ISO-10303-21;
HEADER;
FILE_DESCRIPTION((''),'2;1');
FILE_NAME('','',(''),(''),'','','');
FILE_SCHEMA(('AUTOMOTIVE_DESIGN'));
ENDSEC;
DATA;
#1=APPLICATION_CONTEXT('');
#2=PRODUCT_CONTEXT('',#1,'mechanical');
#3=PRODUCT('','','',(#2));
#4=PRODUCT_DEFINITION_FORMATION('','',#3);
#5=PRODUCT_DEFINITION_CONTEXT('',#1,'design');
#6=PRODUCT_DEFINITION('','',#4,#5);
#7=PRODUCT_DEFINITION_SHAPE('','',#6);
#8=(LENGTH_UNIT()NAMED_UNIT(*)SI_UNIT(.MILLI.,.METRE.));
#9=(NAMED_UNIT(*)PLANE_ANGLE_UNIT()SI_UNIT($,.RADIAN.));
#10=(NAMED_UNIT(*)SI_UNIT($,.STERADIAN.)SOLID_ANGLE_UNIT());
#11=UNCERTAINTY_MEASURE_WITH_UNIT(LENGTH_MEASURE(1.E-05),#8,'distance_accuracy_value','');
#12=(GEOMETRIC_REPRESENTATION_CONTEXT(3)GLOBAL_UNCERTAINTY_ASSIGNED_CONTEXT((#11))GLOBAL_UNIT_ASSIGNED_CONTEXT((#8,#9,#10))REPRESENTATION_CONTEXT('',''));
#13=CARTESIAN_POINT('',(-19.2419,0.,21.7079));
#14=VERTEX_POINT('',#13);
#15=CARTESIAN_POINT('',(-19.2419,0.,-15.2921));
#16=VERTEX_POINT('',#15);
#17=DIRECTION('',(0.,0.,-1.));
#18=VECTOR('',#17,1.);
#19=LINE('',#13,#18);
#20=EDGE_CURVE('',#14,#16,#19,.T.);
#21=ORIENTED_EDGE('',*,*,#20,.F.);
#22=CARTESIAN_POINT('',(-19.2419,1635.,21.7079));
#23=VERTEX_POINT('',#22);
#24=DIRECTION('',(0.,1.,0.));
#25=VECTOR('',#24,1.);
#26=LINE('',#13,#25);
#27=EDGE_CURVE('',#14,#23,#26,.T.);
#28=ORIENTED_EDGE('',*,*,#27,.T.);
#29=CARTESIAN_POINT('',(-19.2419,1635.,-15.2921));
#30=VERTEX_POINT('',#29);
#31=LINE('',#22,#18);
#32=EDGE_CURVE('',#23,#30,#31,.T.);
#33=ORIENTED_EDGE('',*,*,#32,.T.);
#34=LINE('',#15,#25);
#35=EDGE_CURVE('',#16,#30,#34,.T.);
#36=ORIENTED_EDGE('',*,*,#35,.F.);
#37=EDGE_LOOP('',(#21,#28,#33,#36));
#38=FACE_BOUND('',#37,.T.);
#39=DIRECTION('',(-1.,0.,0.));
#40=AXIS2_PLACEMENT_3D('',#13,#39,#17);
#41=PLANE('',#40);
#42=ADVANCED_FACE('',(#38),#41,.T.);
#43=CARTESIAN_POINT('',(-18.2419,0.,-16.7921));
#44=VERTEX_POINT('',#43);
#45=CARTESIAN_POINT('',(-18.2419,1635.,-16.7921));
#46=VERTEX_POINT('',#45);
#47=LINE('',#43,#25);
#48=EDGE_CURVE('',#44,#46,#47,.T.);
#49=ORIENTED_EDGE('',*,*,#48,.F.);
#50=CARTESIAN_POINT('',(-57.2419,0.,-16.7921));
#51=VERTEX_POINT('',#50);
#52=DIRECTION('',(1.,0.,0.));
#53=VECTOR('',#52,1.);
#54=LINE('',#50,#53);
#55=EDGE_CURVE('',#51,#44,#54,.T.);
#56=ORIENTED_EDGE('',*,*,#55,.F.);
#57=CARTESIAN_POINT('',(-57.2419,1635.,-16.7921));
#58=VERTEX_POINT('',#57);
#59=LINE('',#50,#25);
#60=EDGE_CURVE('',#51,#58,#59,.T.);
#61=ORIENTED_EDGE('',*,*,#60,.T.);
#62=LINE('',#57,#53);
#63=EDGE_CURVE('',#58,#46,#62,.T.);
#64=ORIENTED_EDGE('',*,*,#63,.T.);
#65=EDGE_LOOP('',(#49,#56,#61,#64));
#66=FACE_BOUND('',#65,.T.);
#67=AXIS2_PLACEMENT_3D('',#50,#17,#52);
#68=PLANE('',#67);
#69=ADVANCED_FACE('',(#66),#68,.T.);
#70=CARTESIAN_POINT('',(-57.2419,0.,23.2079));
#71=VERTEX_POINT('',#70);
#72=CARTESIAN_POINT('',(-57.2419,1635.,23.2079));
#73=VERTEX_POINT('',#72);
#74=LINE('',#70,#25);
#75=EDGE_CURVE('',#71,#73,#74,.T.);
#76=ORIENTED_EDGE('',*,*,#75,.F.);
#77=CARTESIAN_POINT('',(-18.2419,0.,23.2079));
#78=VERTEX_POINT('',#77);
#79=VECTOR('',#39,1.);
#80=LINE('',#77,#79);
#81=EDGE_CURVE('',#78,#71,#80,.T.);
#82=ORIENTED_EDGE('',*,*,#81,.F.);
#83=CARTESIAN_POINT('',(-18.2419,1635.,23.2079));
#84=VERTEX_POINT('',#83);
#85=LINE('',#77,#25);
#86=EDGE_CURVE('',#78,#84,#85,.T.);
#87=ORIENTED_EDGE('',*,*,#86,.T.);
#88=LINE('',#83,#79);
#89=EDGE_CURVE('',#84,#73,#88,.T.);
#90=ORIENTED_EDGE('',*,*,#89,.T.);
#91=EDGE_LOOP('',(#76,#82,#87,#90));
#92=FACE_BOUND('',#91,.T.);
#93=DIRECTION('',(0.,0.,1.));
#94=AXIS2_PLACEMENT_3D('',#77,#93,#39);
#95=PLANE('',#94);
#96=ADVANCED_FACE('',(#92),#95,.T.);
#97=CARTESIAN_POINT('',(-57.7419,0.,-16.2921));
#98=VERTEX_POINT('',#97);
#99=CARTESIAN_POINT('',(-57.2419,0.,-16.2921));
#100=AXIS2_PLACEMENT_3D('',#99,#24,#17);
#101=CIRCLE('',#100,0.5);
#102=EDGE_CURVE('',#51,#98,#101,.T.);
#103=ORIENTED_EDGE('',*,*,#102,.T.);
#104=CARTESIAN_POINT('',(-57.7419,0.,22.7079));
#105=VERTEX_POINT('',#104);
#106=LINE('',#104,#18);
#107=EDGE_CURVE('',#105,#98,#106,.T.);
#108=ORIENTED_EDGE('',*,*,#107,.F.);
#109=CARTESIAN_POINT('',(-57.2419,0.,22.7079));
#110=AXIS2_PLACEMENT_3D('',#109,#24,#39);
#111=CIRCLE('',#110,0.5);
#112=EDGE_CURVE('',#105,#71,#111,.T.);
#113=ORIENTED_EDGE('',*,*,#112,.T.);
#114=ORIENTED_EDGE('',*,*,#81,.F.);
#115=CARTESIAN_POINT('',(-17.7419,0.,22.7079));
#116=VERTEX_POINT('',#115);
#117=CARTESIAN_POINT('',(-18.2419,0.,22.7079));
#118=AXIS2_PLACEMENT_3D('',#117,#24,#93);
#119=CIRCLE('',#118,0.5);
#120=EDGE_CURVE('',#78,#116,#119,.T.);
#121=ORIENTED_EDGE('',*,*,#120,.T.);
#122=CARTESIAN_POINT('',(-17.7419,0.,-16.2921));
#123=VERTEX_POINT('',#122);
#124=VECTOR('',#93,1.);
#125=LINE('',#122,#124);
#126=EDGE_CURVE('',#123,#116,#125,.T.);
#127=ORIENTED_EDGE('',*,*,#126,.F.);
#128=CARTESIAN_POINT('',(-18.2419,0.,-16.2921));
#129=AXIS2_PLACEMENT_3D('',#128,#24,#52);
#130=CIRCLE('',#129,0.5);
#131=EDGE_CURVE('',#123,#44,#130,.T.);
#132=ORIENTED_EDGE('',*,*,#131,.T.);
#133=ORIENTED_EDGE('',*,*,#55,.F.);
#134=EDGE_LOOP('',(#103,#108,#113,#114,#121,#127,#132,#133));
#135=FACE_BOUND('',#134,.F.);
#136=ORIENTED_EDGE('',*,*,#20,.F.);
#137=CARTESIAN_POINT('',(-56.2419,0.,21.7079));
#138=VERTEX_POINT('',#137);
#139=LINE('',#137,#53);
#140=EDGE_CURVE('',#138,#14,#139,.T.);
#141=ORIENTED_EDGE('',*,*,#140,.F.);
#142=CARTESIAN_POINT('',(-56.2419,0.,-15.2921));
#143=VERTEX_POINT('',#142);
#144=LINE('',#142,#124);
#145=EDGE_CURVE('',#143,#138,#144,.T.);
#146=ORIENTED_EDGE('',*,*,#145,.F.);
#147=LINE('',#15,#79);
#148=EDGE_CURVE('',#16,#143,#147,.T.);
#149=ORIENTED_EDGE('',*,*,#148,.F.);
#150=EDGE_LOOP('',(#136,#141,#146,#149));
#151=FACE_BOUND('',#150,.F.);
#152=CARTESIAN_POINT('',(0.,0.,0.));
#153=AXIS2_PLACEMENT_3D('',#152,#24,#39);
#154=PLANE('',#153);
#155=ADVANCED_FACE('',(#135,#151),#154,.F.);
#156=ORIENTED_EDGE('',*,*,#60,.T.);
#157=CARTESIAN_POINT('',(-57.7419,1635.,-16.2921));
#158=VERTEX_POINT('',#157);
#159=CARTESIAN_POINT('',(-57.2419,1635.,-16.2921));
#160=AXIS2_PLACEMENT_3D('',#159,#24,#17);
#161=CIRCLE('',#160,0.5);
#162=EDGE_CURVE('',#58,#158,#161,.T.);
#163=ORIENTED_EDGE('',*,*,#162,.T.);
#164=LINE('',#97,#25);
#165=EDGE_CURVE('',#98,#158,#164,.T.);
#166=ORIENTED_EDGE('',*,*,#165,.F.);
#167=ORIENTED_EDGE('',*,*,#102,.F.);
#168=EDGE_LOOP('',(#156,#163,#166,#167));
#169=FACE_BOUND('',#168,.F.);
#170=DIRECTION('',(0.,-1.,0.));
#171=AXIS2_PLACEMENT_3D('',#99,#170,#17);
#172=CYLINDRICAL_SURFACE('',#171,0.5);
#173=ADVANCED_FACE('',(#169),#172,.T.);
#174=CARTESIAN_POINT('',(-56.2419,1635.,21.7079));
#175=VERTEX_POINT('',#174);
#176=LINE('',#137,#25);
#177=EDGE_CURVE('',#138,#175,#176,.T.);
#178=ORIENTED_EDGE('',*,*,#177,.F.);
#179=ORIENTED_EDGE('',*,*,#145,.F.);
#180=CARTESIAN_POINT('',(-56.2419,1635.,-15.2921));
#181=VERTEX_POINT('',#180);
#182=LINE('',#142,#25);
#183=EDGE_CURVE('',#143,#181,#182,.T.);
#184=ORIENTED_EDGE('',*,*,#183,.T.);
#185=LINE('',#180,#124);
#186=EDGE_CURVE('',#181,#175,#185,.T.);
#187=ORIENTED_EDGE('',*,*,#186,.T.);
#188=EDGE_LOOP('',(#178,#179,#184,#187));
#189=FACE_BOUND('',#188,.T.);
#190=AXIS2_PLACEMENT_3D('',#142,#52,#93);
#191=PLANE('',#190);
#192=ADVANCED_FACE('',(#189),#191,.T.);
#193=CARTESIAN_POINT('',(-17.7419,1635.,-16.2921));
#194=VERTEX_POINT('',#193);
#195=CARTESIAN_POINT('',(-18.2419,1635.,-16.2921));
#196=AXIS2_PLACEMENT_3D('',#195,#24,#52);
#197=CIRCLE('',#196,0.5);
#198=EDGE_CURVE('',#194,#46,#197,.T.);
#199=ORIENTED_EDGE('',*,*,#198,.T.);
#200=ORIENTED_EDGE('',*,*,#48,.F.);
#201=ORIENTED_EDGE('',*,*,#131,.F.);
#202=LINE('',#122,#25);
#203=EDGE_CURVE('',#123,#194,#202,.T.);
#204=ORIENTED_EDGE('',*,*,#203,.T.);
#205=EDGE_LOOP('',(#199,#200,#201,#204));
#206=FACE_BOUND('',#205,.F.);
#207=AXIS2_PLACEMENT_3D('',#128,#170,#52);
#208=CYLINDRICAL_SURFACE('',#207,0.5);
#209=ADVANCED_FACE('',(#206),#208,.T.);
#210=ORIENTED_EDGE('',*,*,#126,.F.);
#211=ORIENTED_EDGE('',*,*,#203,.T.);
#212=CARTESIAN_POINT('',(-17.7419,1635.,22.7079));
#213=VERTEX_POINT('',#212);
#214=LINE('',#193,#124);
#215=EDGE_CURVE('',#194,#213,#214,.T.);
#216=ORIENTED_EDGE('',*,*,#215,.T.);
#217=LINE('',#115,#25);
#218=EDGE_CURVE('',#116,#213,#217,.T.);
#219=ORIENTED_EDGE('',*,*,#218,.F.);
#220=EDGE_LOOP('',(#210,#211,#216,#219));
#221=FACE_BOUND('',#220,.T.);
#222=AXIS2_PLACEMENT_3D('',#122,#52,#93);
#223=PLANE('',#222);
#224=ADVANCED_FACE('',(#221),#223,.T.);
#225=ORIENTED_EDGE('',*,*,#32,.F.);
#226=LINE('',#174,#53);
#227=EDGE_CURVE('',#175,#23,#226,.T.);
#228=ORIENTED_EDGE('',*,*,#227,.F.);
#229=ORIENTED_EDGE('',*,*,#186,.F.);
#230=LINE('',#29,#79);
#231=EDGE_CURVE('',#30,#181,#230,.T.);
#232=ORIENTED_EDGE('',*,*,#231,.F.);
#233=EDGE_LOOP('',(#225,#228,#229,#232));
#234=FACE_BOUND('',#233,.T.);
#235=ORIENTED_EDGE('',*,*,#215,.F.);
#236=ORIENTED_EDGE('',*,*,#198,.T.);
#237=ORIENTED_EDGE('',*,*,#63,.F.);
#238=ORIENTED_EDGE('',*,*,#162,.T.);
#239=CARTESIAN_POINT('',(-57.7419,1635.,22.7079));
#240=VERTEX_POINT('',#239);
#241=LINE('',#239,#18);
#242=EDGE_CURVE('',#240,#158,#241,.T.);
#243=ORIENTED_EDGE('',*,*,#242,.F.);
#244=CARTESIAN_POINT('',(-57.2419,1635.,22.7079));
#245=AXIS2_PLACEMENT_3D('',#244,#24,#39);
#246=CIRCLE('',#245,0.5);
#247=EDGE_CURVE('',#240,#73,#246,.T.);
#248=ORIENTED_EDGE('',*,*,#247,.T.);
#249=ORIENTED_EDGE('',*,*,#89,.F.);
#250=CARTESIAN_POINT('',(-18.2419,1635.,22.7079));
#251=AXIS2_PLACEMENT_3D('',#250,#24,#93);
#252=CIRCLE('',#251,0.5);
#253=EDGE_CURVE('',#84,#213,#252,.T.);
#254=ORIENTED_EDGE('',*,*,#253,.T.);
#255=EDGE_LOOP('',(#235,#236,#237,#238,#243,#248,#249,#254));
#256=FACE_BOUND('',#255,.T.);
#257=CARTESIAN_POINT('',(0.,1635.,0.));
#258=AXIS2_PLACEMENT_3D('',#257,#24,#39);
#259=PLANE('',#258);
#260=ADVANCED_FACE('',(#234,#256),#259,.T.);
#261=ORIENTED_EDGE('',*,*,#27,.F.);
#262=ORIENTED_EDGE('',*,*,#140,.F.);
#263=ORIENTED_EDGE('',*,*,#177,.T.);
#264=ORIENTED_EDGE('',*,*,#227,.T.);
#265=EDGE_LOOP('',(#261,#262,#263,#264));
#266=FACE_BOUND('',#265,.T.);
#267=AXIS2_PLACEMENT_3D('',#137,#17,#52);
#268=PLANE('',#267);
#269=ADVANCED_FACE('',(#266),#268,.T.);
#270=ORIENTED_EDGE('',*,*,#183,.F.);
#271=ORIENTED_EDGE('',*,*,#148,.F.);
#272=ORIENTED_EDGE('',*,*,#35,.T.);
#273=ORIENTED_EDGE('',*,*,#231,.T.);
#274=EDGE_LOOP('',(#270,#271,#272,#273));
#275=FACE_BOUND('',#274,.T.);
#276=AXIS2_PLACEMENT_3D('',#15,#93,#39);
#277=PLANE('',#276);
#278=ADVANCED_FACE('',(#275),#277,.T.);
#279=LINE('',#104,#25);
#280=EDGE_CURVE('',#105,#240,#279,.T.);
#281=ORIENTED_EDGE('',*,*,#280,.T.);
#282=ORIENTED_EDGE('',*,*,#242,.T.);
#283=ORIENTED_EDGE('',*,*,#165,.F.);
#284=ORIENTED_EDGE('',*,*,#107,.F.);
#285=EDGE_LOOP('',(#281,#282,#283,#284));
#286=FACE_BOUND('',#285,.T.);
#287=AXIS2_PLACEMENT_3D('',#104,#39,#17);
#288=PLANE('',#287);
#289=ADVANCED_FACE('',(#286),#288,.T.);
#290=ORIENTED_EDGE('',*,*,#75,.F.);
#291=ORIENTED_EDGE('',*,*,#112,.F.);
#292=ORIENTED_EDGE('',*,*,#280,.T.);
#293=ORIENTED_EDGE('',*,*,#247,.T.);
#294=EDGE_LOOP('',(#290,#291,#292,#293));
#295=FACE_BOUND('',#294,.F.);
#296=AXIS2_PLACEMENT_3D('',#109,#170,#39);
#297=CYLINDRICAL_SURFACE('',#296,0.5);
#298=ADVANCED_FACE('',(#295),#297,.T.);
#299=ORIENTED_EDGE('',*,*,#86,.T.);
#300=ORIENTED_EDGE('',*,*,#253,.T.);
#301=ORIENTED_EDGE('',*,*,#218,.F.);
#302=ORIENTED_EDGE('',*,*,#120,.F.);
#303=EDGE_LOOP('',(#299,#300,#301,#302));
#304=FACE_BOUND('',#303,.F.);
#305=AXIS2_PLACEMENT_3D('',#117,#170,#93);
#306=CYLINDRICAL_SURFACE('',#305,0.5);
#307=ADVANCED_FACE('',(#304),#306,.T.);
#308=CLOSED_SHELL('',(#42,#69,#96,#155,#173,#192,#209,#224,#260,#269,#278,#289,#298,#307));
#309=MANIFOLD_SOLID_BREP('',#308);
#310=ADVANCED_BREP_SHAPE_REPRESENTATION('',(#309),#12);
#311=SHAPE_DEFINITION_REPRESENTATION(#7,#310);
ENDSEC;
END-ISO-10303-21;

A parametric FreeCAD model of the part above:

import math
import FreeCAD as App
import Part
import Sketcher
from FreeCAD import Vector

doc = App.newDocument("Part")
params = doc.addObject("Spreadsheet::Sheet", "Params")
for row, (alias, value) in enumerate([
    ("sketch1_radius", "0.5 mm"),
    ("sketch1_width", "39 mm"),
    ("pad1_length", "1635 mm"),
], start=1):
    params.set(f"A{row}", alias)
    params.set(f"B{row}", "=" + value)
    params.setAlias(f"B{row}", alias)

body = doc.addObject("PartDesign::Body", "Body")

# Sketch on XZ plane
sketch1 = doc.addObject("Sketcher::SketchObject", "Sketch")
body.addObject(sketch1)
sketch1.AttachmentSupport = (doc.XZ_Plane, [""])
sketch1.MapMode = "FlatFace"
sketch1.addGeometry([
    Part.LineSegment(Vector(-57.2, 23.2, 0), Vector(-18.2, 23.2, 0)),  # 0
    Part.ArcOfCircle(Part.Circle(Vector(-18.2, 22.7, 0), Vector(0, 0, 1), 0.5), math.radians(0), math.radians(90)),  # 1
    Part.LineSegment(Vector(-17.7, 22.7, 0), Vector(-17.7, -16.3, 0)),  # 2
    Part.ArcOfCircle(Part.Circle(Vector(-18.2, -16.3, 0), Vector(0, 0, 1), 0.5), math.radians(-90), math.radians(0)),  # 3
    Part.LineSegment(Vector(-18.2, -16.8, 0), Vector(-57.2, -16.8, 0)),  # 4
    Part.ArcOfCircle(Part.Circle(Vector(-57.2, -16.3, 0), Vector(0, 0, 1), 0.5), math.radians(180), math.radians(270)),  # 5
    Part.LineSegment(Vector(-57.7, -16.3, 0), Vector(-57.7, 22.7, 0)),  # 6
    Part.ArcOfCircle(Part.Circle(Vector(-57.2, 22.7, 0), Vector(0, 0, 1), 0.5), math.radians(90), math.radians(180)),  # 7
    Part.LineSegment(Vector(-19.2, 21.7, 0), Vector(-56.2, 21.7, 0)),  # 8
    Part.LineSegment(Vector(-56.2, 21.7, 0), Vector(-56.2, -15.3, 0)),  # 9
    Part.LineSegment(Vector(-56.2, -15.3, 0), Vector(-19.2, -15.3, 0)),  # 10
    Part.LineSegment(Vector(-19.2, -15.3, 0), Vector(-19.2, 21.7, 0)),  # 11
], False)
sketch1.addConstraint([
    Sketcher.Constraint("Tangent", 0, 2, 1, 2),
    Sketcher.Constraint("Tangent", 1, 1, 2, 1),
    Sketcher.Constraint("Tangent", 2, 2, 3, 2),
    Sketcher.Constraint("Tangent", 3, 1, 4, 1),
    Sketcher.Constraint("Tangent", 4, 2, 5, 2),
    Sketcher.Constraint("Tangent", 5, 1, 6, 1),
    Sketcher.Constraint("Tangent", 6, 2, 7, 2),
    Sketcher.Constraint("Tangent", 7, 1, 0, 1),
    Sketcher.Constraint("Coincident", 8, 2, 9, 1),
    Sketcher.Constraint("Coincident", 9, 2, 10, 1),
    Sketcher.Constraint("Coincident", 10, 2, 11, 1),
    Sketcher.Constraint("Coincident", 11, 2, 8, 1),
    Sketcher.Constraint("Horizontal", 0),
    Sketcher.Constraint("Vertical", 2),
    Sketcher.Constraint("Horizontal", 4),
    Sketcher.Constraint("Vertical", 6),
    Sketcher.Constraint("Horizontal", 8),
    Sketcher.Constraint("Vertical", 9),
    Sketcher.Constraint("Horizontal", 10),
    Sketcher.Constraint("Vertical", 11),
    Sketcher.Constraint("Equal", 1, 3),
    Sketcher.Constraint("Equal", 3, 5),
    Sketcher.Constraint("Equal", 5, 7),
    Sketcher.Constraint("Equal", 4, 2),
    Sketcher.Constraint("Equal", 10, 9),
    Sketcher.Constraint("Radius", 1, 0.5),
    Sketcher.Constraint("DistanceX", 6, 2, 8, 2, 1.5),
    Sketcher.Constraint("DistanceY", 8, 2, 7, 1, 1.5),
    Sketcher.Constraint("DistanceY", 4, 2, 9, 2, 1.5),
    Sketcher.Constraint("DistanceX", 0, 1, 0, 2, 39.0),
    Sketcher.Constraint("DistanceX", 1, 3, -1, 1, 18.242),
    Sketcher.Constraint("DistanceY", -1, 1, 1, 3, 22.708),
])
sketch1.setExpression("Constraints[25]", "Params.sketch1_radius")
sketch1.setExpression("Constraints[29]", "Params.sketch1_width")
pad1 = doc.addObject("PartDesign::Pad", "Pad")
body.addObject(pad1)
pad1.Profile = sketch1
pad1.setExpression("Length", "Params.pad1_length")
pad1.Reversed = True

doc.recompute()
